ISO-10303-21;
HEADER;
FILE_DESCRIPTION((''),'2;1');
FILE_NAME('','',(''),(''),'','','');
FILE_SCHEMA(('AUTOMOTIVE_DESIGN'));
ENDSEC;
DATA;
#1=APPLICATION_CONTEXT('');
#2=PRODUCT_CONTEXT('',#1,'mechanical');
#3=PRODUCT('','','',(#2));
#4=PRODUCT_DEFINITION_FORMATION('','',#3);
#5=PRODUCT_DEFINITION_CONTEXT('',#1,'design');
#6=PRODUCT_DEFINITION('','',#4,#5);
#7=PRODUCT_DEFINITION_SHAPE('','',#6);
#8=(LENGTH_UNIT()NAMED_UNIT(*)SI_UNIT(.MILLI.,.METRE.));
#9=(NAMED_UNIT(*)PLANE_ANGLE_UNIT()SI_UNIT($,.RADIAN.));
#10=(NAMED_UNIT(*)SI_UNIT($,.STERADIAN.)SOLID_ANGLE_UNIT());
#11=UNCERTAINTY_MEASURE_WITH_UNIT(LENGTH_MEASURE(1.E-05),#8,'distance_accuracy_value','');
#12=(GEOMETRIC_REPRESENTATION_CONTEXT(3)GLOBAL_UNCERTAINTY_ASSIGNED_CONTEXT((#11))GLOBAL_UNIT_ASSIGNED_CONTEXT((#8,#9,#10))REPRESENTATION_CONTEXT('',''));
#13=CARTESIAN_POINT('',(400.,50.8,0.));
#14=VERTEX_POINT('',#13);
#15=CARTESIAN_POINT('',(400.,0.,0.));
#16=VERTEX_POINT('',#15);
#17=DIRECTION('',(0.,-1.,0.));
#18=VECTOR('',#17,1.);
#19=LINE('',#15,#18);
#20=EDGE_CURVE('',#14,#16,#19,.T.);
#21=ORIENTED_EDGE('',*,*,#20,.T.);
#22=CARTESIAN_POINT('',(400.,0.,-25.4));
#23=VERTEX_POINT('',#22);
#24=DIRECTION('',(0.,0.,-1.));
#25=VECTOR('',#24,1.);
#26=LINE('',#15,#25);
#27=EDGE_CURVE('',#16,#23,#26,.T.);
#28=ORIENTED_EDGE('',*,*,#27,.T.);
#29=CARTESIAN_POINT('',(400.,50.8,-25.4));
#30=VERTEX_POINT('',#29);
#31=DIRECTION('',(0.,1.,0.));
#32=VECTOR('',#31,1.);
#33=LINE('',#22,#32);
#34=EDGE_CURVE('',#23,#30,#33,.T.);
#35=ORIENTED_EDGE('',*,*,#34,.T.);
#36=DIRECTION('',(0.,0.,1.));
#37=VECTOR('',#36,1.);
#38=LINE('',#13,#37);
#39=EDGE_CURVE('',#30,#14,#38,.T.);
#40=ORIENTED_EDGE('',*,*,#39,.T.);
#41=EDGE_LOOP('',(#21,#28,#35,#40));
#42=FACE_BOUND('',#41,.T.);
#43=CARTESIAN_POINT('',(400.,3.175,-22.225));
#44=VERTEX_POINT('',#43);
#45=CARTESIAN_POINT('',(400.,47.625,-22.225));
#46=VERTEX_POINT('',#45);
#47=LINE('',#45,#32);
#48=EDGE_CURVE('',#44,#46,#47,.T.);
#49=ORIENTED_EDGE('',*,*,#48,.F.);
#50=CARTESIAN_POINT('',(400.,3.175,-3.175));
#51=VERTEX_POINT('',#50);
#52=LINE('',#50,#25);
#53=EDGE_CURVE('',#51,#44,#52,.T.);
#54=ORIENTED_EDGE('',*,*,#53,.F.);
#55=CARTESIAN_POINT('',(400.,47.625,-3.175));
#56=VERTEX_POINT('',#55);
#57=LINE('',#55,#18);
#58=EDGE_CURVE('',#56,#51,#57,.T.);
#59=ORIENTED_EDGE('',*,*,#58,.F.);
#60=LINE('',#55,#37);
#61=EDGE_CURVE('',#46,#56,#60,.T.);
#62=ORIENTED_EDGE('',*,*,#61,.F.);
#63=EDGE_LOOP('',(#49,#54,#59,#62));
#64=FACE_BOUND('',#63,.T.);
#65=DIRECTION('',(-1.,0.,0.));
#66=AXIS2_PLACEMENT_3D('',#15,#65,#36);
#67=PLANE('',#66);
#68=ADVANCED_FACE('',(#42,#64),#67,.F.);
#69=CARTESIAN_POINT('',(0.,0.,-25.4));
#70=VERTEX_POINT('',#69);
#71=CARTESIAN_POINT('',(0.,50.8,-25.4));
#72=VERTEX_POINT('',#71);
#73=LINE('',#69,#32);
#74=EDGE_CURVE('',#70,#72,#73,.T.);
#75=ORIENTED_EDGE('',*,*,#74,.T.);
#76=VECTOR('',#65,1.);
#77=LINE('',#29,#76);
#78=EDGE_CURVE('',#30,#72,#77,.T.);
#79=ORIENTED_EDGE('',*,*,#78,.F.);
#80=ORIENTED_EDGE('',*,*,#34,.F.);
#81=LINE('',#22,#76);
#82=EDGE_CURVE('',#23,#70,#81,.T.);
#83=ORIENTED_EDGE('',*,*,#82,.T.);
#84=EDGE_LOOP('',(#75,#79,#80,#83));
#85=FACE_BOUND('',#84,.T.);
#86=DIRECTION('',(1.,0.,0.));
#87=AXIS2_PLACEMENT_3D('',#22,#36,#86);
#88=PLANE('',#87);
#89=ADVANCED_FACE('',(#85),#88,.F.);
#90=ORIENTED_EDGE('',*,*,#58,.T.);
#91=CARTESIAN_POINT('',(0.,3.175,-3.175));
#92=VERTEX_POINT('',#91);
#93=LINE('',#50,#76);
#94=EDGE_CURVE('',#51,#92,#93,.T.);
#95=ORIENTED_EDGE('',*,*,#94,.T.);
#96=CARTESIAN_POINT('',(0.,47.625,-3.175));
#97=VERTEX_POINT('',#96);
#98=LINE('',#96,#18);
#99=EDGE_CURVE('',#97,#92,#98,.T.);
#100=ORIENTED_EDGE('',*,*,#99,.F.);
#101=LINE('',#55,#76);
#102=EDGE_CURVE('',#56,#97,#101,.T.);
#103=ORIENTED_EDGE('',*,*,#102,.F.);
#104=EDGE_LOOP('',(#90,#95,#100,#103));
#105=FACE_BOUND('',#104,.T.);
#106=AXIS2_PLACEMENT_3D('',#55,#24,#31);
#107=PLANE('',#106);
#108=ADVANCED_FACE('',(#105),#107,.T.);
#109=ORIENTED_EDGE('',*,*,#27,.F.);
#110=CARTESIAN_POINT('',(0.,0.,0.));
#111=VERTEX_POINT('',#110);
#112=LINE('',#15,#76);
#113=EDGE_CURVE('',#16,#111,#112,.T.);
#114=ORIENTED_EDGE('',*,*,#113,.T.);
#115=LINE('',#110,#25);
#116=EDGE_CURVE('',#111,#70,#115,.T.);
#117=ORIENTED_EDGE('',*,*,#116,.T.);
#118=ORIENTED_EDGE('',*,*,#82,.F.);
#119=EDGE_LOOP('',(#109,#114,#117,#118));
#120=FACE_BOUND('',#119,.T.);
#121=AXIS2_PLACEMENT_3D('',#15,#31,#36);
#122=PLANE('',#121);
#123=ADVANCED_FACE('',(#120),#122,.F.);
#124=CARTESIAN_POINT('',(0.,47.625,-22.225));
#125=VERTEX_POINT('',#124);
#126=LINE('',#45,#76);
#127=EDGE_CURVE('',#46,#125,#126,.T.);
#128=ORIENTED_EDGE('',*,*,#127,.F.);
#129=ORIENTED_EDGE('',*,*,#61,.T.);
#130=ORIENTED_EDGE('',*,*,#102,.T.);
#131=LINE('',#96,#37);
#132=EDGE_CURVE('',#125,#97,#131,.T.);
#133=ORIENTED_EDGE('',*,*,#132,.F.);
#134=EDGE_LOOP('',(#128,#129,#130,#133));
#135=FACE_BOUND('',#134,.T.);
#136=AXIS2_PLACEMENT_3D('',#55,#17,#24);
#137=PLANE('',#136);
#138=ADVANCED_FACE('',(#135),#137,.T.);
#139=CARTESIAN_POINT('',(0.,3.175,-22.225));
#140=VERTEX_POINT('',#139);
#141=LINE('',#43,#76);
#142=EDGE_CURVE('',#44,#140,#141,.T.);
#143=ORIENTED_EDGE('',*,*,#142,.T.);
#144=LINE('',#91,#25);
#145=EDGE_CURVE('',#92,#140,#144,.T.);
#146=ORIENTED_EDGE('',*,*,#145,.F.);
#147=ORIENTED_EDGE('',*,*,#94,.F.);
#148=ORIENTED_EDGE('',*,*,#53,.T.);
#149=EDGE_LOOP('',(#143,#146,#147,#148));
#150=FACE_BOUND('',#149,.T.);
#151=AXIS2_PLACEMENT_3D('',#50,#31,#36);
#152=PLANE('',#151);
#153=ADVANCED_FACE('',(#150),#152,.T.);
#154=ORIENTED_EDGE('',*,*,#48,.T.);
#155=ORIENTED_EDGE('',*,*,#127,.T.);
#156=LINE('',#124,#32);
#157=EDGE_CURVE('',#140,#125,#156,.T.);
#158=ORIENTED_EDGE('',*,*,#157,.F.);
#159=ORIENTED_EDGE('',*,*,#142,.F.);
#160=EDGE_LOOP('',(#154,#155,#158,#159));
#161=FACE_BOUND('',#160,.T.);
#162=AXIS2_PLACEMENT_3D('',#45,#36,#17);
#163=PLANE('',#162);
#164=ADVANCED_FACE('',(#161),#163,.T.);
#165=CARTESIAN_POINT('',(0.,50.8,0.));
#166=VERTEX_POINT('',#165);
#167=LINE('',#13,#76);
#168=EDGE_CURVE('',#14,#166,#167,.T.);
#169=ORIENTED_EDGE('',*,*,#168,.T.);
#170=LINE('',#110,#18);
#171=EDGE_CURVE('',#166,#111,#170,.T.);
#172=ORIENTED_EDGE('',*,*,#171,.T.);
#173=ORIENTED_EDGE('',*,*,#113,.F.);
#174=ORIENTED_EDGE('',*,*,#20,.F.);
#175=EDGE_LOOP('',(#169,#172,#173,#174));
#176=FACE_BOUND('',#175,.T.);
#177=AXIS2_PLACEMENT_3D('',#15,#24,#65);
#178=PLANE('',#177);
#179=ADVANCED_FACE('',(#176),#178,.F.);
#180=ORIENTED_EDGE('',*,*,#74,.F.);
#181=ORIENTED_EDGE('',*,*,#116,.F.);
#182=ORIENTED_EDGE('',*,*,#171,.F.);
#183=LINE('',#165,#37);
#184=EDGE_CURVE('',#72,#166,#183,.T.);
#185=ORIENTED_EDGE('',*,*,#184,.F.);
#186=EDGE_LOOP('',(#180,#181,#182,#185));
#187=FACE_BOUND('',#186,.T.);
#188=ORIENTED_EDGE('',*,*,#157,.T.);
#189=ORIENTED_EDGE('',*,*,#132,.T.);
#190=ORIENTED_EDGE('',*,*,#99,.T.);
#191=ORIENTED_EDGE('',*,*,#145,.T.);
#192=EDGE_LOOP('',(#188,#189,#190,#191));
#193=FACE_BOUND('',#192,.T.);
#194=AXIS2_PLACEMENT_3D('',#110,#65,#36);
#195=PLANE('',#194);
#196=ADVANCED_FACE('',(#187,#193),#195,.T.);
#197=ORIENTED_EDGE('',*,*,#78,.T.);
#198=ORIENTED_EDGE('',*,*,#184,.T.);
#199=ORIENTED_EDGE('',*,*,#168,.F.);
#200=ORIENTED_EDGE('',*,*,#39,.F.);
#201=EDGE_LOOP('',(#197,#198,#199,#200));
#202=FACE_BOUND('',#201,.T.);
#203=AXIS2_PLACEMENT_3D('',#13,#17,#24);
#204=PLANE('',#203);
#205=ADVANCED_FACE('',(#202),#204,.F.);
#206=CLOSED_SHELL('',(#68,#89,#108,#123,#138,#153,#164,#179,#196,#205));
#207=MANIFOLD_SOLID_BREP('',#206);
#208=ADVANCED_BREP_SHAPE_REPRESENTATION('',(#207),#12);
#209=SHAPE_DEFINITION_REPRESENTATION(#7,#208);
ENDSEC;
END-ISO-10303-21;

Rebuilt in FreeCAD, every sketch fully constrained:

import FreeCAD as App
import Part
import Sketcher
Q = App.Units.Quantity


def add_polygon(sketch, points):
    """Adds a closed chain of lines whose ends are joined by coincident constraints."""
    first, n = sketch.GeometryCount, len(points)
    for a, b in zip(points, points[1:] + points[:1]):
        sketch.addGeometry(Part.LineSegment(App.Vector(*a, 0), App.Vector(*b, 0)), False)
    for i in range(n):
        sketch.addConstraint(Sketcher.Constraint("Coincident", first + i, 2, first + (i + 1) % n, 1))

doc = App.newDocument("Part")
body = doc.addObject("PartDesign::Body", "Body")

# Sketch on YZ plane
sketch1 = doc.addObject("Sketcher::SketchObject", "Sketch")
body.addObject(sketch1)
sketch1.AttachmentSupport = (doc.YZ_Plane, [""])
sketch1.MapMode = "FlatFace"
add_polygon(sketch1, [(51, 0), (0, 0), (0, -25), (51, -25)])  # lines 0-3
add_polygon(sketch1, [(3, -22), (3, -3), (48, -3), (48, -22)])  # lines 4-7
sketch1.addConstraint(Sketcher.Constraint("Horizontal", 0))
sketch1.addConstraint(Sketcher.Constraint("Vertical", 1))
sketch1.addConstraint(Sketcher.Constraint("Horizontal", 2))
sketch1.addConstraint(Sketcher.Constraint("Vertical", 3))
sketch1.addConstraint(Sketcher.Constraint("Vertical", 4))
sketch1.addConstraint(Sketcher.Constraint("Horizontal", 5))
sketch1.addConstraint(Sketcher.Constraint("Vertical", 6))
sketch1.addConstraint(Sketcher.Constraint("Horizontal", 7))
sketch1.addConstraint(Sketcher.Constraint("Coincident", 0, 2, -1, 1))
sketch1.addConstraint(Sketcher.Constraint("DistanceX", 0, 2, 0, 1, Q("2 in")))
sketch1.addConstraint(Sketcher.Constraint("DistanceY", 1, 2, 1, 1, Q("1 in")))
sketch1.addConstraint(Sketcher.Constraint("DistanceX", 5, 1, 5, 2, Q("1.75 in")))
sketch1.addConstraint(Sketcher.Constraint("DistanceY", 4, 1, 4, 2, Q("0.75 in")))
sketch1.addConstraint(Sketcher.Constraint("DistanceX", -1, 1, 4, 2, Q("0.125 in")))
sketch1.addConstraint(Sketcher.Constraint("DistanceY", 4, 2, -1, 1, Q("0.125 in")))
pad1 = doc.addObject("PartDesign::Pad", "Pad")
body.addObject(pad1)
pad1.Profile = sketch1
pad1.Length = 400

doc.recompute()
